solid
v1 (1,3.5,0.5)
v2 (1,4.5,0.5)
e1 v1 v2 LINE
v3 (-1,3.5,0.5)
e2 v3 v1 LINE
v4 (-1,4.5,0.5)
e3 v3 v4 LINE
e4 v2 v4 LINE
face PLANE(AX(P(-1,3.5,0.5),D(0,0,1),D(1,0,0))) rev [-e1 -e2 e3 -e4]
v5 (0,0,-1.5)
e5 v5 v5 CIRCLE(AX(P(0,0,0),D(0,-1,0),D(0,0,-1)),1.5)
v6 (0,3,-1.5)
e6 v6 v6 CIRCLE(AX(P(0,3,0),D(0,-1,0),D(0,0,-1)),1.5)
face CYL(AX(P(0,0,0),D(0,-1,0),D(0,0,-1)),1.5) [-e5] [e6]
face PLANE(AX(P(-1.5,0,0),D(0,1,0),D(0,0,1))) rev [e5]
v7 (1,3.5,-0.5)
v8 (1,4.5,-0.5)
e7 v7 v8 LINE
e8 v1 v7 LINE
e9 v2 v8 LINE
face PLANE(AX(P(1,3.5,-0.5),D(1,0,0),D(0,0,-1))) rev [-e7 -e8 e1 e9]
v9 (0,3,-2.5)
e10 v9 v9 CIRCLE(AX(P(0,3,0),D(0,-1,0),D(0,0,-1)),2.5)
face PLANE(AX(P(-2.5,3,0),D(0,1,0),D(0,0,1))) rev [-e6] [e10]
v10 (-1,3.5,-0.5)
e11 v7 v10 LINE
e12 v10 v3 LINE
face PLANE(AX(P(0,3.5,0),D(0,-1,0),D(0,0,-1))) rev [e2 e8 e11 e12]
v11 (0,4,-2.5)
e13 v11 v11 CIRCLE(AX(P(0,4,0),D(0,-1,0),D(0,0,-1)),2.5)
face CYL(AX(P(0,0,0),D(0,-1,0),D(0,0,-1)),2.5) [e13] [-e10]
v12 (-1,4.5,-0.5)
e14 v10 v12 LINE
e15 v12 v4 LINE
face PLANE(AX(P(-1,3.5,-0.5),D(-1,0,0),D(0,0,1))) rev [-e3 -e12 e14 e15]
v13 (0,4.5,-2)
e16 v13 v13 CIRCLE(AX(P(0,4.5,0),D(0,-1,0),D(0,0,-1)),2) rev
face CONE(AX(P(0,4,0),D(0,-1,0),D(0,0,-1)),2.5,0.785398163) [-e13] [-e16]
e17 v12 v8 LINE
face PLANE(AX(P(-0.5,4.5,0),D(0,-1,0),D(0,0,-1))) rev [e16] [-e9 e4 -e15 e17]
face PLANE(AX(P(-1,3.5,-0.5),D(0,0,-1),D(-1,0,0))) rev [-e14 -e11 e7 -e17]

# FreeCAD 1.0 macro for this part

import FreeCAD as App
import Part
import Sketcher


def edges_at(feature, points):
    """Names of the edges that pass closest to the given points."""
    edges = feature.Shape.Edges
    near = lambda p: min(range(len(edges)), key=lambda i: edges[i].distToShape(Part.Vertex(*p))[0])
    return sorted({f"Edge{near(p) + 1}" for p in points})


def add_polygon(sketch, points):
    """Adds a closed chain of lines whose ends are joined by coincident constraints."""
    first, n = sketch.GeometryCount, len(points)
    for a, b in zip(points, points[1:] + points[:1]):
        sketch.addGeometry(Part.LineSegment(App.Vector(*a, 0), App.Vector(*b, 0)), False)
    for i in range(n):
        sketch.addConstraint(Sketcher.Constraint("Coincident", first + i, 2, first + (i + 1) % n, 1))

doc = App.newDocument("Part")
params = doc.addObject("Spreadsheet::Sheet", "Params")
for row, (alias, value) in enumerate([
    ("sketch1_width", "2 mm"),
    ("sketch1_width2", "1 mm"),
    ("sketch1_height", "3 mm"),
    ("sketch1_width3", "0.5 mm"),
    ("revolution_angle", "360 deg"),
    ("chamfer_size", "0.5 mm"),
    ("sketch2_width", "2 mm"),
    ("sketch2_height", "1 mm"),
    ("pocket1_length", "1 mm"),
], start=1):
    params.set(f"A{row}", alias)
    params.set(f"B{row}", "=" + value)
    params.setAlias(f"B{row}", alias)

body = doc.addObject("PartDesign::Body", "Body")

# Sketch on XY plane
sketch1 = doc.addObject("Sketcher::SketchObject", "Sketch")
body.addObject(sketch1)
sketch1.AttachmentSupport = (doc.XY_Plane, [""])
sketch1.MapMode = "FlatFace"
add_polygon(sketch1, [(0, 3.5), (-0.5, 3.5), (-0.5, 4.5), (-2.5, 4.5), (-2.5, 3), (-1.5, 3), (-1.5, 0), (0, 0)])  # lines 0-7
sketch1.addConstraint([
    Sketcher.Constraint("Horizontal", 0),
    Sketcher.Constraint("Vertical", 1),
    Sketcher.Constraint("Horizontal", 2),
    Sketcher.Constraint("Vertical", 3),
    Sketcher.Constraint("Horizontal", 4),
    Sketcher.Constraint("Vertical", 5),
    Sketcher.Constraint("Horizontal", 6),
    Sketcher.Constraint("Vertical", 7),
    Sketcher.Constraint("Coincident", 6, 2, -1, 1),
    Sketcher.Constraint("Equal", 4, 1),
    Sketcher.Constraint("Equal", 6, 3),
    Sketcher.Constraint("DistanceX", 2, 2, 2, 1, 2.0),
    Sketcher.Constraint("DistanceX", 4, 1, 4, 2, 1.0),
    Sketcher.Constraint("DistanceY", 5, 2, 5, 1, 3.0),
    Sketcher.Constraint("DistanceX", 0, 2, 0, 1, 0.5),
])
sketch1.setExpression("Constraints[19]", "Params.sketch1_width")
sketch1.setExpression("Constraints[20]", "Params.sketch1_width2")
sketch1.setExpression("Constraints[21]", "Params.sketch1_height")
sketch1.setExpression("Constraints[22]", "Params.sketch1_width3")
revolution = doc.addObject("PartDesign::Revolution", "Revolution")
body.addObject(revolution)
revolution.Profile = sketch1
revolution.ReferenceAxis = (sketch1, ["V_Axis"])
revolution.setExpression("Angle", "Params.revolution_angle")
doc.recompute()

chamfer = doc.addObject("PartDesign::Chamfer", "Chamfer")
body.addObject(chamfer)
chamfer.Base = (revolution, edges_at(revolution, [(0, 4.5, 2.5)]))
chamfer.setExpression("Size", "Params.chamfer_size")

# Sketch on XZ plane
sketch2 = doc.addObject("Sketcher::SketchObject", "Sketch001")
body.addObject(sketch2)
sketch2.AttachmentSupport = (doc.XZ_Plane, [""])
sketch2.MapMode = "FlatFace"
sketch2.AttachmentOffset = App.Placement(App.Vector(0, 0, -4.5), App.Rotation())
add_polygon(sketch2, [(-1, -0.5), (-1, 0.5), (1, 0.5), (1, -0.5)])  # lines 0-3
sketch2.addConstraint([
    Sketcher.Constraint("Vertical", 0),
    Sketcher.Constraint("Horizontal", 1),
    Sketcher.Constraint("Vertical", 2),
    Sketcher.Constraint("Horizontal", 3),
    Sketcher.Constraint("Symmetric", 0, 2, 2, 2, -1, 1),
    Sketcher.Constraint("DistanceX", 1, 1, 1, 2, 2.0),
    Sketcher.Constraint("DistanceY", 0, 1, 0, 2, 1.0),
])
sketch2.setExpression("Constraints[9]", "Params.sketch2_width")
sketch2.setExpression("Constraints[10]", "Params.sketch2_height")
pocket1 = doc.addObject("PartDesign::Pocket", "Pocket")
body.addObject(pocket1)
pocket1.Profile = sketch2
pocket1.setExpression("Length", "Params.pocket1_length")
pocket1.Reversed = True

doc.recompute()
